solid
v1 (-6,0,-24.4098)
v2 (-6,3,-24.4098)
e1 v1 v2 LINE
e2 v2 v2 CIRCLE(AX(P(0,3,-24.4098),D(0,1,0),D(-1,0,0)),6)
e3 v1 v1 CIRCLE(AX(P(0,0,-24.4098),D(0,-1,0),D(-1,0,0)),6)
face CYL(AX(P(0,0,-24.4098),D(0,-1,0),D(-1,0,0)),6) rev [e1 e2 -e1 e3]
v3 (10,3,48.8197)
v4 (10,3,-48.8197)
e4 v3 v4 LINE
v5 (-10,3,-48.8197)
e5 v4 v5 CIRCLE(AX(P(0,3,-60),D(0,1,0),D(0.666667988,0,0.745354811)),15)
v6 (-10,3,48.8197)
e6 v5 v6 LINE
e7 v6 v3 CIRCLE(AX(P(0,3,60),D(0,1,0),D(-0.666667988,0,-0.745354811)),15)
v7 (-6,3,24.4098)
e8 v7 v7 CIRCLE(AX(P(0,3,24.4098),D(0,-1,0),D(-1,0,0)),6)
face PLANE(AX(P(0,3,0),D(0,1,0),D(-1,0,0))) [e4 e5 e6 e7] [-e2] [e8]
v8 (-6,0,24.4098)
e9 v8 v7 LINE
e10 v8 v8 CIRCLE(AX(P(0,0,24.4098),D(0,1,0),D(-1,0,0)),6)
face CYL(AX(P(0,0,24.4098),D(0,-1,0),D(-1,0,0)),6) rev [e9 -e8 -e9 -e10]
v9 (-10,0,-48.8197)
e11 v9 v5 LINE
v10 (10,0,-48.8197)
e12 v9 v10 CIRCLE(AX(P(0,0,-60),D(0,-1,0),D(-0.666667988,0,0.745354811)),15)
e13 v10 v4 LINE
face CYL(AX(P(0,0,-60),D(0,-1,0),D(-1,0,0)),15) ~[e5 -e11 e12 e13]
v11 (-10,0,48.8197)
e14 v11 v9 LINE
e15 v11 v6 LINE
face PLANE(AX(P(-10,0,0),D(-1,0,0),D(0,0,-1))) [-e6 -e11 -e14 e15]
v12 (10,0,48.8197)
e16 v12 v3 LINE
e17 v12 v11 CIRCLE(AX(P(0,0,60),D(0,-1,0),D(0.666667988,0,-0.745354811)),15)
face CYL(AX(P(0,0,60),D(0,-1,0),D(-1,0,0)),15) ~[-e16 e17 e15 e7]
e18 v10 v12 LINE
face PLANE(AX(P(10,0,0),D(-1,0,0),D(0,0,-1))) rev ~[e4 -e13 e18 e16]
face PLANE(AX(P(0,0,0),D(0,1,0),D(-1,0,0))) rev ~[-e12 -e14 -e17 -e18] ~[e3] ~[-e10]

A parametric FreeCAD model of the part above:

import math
import FreeCAD as App
import Part
import Sketcher
from FreeCAD import Vector
Q = App.Units.Quantity

doc = App.newDocument("Part")
body = doc.addObject("PartDesign::Body", "Body")

# Sketch on XZ plane
sketch1 = body.newObject("Sketcher::SketchObject", "Sketch")
sketch1.AttachmentSupport = (doc.getObject("XZ_Plane"), [""])
sketch1.MapMode = "FlatFace"
sketch1.addGeometry([
    Part.ArcOfCircle(Part.Circle(Vector(0, -60, 0), Vector(0, 0, 1), 15), math.radians(132), math.radians(408)),  # 0
    Part.LineSegment(Vector(-10, -49, 0), Vector(-10, 49, 0)),  # 1
    Part.ArcOfCircle(Part.Circle(Vector(0, 60, 0), Vector(0, 0, 1), 15), math.radians(-48), math.radians(228)),  # 2
    Part.LineSegment(Vector(10, 49, 0), Vector(10, -49, 0)),  # 3
    Part.Circle(Vector(0, -24, 0), Vector(0, 0, 1), 6),  # 4
    Part.Circle(Vector(0, 24, 0), Vector(0, 0, 1), 6),  # 5
], False)
sketch1.addConstraint([
    Sketcher.Constraint("Coincident", 0, 1, 1, 1),
    Sketcher.Constraint("Coincident", 1, 2, 2, 2),
    Sketcher.Constraint("Coincident", 2, 1, 3, 1),
    Sketcher.Constraint("Coincident", 3, 2, 0, 2),
    Sketcher.Constraint("Vertical", 1),
    Sketcher.Constraint("Vertical", 3),
    Sketcher.Constraint("Equal", 0, 2),
    Sketcher.Constraint("Equal", 4, 5),
    Sketcher.Constraint("Symmetric", 0, 3, 2, 3, -1, 1),
    Sketcher.Constraint("Symmetric", 4, 3, 5, 3, -1, 1),
    Sketcher.Constraint("Symmetric", 1, 2, 2, 1, -2),
    Sketcher.Constraint("PointOnObject", 4, 3, -2),
    Sketcher.Constraint("Diameter", 4, Q("12 mm")),
    Sketcher.Constraint("Radius", 0, Q("15 mm")),
    Sketcher.Constraint("DistanceX", 1, 2, 2, 1, Q("20 mm")),
    Sketcher.Constraint("DistanceY", 1, 1, 1, 2, Q("97.6394 mm")),
    Sketcher.Constraint("DistanceY", 5, 3, 1, 2, Q("24.41 mm")),
])
pad1 = body.newObject("PartDesign::Pad", "Pad")
pad1.Profile = sketch1
pad1.Length = 3
pad1.Reversed = True

doc.recompute()
